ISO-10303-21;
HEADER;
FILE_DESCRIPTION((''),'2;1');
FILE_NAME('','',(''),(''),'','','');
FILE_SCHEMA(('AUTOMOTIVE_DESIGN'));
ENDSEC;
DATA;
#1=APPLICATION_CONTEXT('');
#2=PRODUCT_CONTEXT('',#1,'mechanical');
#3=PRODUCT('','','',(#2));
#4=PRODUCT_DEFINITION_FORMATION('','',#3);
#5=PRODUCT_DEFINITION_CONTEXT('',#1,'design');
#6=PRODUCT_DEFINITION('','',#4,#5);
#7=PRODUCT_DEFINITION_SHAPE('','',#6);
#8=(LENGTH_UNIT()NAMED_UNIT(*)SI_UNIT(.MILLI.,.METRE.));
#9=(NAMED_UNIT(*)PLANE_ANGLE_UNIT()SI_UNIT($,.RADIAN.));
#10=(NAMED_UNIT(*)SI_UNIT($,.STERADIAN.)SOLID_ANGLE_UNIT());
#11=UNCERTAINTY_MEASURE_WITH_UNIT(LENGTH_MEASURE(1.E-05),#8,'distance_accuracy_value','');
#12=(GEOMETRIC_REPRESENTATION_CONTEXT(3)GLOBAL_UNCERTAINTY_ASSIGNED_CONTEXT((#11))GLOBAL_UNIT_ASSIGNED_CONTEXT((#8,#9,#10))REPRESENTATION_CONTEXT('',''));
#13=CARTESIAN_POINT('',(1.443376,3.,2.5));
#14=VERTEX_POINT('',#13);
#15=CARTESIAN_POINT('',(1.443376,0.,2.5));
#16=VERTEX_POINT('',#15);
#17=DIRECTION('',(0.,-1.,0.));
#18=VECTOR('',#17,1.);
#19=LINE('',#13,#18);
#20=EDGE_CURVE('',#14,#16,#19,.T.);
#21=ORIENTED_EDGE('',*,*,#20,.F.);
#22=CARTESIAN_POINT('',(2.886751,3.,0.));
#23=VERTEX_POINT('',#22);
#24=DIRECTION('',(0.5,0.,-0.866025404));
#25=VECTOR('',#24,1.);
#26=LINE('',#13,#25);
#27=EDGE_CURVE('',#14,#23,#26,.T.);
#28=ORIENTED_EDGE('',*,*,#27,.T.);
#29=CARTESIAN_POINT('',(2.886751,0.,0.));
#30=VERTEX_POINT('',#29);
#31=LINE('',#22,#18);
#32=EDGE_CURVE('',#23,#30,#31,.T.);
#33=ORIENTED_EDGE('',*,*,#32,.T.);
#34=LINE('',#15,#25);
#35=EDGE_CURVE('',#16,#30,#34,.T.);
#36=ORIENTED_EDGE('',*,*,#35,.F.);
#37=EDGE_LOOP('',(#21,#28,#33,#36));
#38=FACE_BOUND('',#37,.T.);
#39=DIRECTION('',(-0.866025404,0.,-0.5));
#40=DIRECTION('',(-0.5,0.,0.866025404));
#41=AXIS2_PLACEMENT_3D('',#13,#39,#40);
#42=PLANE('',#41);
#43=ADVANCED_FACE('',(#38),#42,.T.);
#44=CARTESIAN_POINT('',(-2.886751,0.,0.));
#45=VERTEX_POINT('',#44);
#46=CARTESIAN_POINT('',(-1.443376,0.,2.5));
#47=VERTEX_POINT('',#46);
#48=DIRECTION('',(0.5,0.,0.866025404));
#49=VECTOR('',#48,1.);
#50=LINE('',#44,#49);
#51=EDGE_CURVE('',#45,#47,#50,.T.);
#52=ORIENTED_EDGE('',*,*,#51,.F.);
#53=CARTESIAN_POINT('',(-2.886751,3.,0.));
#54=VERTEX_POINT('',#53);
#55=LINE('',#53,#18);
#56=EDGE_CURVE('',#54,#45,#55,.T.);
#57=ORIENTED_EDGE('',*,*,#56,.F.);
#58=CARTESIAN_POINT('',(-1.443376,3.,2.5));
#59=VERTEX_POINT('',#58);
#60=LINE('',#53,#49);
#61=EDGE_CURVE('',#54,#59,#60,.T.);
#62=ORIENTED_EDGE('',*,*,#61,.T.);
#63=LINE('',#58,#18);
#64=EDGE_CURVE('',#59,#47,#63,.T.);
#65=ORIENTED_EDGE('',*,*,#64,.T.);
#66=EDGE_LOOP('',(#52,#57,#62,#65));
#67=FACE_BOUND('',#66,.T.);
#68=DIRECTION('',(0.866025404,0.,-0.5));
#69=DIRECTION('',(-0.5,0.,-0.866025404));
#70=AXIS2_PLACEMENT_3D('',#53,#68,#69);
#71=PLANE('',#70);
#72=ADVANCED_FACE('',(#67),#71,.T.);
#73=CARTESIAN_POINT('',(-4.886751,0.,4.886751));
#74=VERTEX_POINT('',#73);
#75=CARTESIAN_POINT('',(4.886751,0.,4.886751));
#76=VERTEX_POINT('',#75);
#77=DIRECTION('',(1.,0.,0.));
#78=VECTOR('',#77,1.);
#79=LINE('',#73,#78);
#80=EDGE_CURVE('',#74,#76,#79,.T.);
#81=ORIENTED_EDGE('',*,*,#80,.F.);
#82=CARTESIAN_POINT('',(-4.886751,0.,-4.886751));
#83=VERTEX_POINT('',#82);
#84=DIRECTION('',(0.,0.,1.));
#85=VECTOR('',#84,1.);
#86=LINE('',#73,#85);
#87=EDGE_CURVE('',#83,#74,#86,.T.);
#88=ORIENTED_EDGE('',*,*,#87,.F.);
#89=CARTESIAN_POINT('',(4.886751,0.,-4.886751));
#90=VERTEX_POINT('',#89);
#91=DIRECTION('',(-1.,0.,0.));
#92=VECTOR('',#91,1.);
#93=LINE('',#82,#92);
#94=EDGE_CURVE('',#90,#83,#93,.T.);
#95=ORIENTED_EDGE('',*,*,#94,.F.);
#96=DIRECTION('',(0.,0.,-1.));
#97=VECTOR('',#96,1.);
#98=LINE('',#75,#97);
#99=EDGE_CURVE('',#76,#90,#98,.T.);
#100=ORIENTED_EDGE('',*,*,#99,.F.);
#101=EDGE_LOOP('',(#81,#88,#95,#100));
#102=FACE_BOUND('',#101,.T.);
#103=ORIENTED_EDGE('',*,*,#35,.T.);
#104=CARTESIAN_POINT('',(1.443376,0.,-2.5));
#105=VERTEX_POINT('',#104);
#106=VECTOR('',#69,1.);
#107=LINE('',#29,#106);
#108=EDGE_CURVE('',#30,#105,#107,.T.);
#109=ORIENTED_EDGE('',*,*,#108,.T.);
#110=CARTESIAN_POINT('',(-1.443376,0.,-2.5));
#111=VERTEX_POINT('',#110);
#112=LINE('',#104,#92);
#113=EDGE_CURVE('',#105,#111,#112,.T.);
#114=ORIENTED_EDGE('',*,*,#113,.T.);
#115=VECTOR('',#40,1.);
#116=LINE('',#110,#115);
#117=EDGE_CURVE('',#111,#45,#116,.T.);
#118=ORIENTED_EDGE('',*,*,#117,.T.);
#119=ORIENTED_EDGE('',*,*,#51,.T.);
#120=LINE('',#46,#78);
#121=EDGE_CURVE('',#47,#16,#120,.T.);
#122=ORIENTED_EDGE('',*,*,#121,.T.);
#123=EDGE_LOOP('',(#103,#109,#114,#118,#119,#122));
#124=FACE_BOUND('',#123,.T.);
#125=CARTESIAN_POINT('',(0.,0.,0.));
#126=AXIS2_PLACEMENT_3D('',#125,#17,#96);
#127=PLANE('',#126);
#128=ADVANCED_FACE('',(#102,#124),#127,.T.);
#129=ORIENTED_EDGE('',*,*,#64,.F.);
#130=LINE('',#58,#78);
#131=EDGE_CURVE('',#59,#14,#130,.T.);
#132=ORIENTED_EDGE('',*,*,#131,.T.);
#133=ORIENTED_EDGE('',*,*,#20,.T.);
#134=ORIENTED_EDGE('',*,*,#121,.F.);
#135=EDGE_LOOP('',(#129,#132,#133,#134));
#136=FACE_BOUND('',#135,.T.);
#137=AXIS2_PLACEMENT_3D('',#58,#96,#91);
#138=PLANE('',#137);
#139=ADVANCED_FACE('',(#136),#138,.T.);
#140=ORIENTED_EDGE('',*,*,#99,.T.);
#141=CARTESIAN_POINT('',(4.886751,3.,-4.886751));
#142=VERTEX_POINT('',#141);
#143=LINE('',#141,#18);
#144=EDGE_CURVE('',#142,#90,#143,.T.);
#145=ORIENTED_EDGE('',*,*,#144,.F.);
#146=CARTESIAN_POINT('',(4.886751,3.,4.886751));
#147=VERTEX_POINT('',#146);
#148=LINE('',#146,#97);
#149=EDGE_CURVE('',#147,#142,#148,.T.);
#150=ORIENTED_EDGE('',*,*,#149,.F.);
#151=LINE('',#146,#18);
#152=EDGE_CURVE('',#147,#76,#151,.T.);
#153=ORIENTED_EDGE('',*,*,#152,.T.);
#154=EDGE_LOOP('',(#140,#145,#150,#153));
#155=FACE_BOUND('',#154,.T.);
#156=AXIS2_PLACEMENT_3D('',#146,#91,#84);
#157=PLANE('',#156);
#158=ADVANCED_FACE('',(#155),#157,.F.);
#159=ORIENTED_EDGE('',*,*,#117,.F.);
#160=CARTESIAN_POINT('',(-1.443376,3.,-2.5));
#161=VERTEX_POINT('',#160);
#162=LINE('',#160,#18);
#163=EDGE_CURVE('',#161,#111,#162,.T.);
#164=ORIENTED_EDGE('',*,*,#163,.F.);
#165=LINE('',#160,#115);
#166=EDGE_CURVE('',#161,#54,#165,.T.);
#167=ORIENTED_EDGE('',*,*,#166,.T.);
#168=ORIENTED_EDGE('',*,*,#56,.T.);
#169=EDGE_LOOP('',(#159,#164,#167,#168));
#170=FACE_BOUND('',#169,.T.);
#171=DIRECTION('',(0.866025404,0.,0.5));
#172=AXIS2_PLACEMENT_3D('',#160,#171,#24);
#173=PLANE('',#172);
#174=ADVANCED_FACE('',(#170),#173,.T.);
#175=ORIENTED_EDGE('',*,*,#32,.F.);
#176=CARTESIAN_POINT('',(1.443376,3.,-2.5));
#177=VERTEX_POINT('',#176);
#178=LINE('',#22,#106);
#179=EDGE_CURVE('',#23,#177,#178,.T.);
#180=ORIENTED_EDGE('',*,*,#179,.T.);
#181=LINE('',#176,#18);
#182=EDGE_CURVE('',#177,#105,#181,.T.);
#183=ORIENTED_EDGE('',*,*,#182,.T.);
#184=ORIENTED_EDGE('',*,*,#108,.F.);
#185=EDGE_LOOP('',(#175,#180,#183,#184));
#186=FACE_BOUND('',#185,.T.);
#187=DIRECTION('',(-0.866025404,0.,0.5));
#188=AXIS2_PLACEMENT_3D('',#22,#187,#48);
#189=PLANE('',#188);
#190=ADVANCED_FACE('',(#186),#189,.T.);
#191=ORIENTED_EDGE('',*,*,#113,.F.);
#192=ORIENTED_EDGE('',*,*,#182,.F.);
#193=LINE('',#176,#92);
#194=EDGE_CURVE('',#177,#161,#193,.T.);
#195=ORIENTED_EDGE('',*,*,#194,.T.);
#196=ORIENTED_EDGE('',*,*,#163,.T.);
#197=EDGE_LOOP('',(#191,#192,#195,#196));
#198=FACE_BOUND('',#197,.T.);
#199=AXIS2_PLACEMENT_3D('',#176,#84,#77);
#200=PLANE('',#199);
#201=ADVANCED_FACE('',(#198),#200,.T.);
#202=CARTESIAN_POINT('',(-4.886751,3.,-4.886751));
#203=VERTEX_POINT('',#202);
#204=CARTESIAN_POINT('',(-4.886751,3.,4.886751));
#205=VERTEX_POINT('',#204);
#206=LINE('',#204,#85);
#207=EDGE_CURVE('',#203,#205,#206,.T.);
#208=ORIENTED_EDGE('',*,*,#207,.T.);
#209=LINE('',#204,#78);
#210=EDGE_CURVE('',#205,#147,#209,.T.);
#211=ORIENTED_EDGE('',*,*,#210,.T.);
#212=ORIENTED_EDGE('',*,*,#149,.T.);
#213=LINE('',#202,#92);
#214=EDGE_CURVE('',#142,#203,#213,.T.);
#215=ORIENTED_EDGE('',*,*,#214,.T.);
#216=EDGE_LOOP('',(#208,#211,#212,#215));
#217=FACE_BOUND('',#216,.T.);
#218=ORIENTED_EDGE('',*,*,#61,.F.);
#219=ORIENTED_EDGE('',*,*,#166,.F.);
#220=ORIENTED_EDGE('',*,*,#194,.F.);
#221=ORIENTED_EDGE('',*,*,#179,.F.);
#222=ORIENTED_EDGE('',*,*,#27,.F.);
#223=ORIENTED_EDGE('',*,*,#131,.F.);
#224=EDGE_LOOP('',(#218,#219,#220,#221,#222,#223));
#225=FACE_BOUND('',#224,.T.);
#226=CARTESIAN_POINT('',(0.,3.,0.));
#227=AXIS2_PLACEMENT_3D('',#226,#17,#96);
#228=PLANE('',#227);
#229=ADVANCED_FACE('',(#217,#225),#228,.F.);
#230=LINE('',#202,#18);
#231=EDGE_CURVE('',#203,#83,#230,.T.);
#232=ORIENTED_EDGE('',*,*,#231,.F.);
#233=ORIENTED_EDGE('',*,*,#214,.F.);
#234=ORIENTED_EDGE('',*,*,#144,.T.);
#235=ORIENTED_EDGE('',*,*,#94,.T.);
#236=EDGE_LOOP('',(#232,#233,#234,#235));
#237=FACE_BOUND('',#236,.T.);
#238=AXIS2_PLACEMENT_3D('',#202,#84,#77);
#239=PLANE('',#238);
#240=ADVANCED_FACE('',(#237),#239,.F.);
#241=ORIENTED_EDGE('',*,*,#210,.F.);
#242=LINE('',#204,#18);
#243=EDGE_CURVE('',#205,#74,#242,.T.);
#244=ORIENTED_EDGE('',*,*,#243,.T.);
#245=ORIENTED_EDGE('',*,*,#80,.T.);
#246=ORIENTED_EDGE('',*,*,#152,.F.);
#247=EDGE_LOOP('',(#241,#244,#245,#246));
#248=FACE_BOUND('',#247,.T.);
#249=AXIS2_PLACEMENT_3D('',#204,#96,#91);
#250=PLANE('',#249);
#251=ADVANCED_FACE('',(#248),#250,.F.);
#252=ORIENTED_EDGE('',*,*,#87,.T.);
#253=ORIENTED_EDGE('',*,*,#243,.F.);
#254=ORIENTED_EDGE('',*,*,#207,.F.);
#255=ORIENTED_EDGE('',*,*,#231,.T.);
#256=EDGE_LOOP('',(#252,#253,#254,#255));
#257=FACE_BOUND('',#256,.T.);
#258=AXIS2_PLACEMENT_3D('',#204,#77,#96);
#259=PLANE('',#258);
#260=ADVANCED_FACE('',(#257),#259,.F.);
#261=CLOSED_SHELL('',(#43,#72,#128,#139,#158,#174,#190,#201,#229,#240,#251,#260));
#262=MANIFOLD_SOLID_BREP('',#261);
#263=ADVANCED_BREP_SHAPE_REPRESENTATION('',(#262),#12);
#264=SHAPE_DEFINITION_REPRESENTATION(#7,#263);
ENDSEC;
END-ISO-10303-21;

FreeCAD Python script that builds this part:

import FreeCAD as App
import Part
import Sketcher

V = App.Vector
Q = App.Units.Quantity

doc = App.newDocument("Part")
params = doc.addObject("Spreadsheet::Sheet", "Params")
for row, (alias, value) in enumerate([
    ("pad1_length", "3 mm"),
], start=1):
    params.set(f"A{row}", alias)
    params.set(f"B{row}", "=" + value)
    params.setAlias(f"B{row}", alias)

body = doc.addObject("PartDesign::Body", "Body")

# Sketch on XZ plane
sketch1 = body.newObject("Sketcher::SketchObject", "Sketch")
sketch1.AttachmentSupport = (doc.getObject("XZ_Plane"), [""])
sketch1.MapMode = "FlatFace"
sketch1.addGeometry(Part.LineSegment(V(-4.9, -4.9, 0), V(-4.9, 4.9, 0)), False)
sketch1.addGeometry(Part.LineSegment(V(-4.9, 4.9, 0), V(4.9, 4.9, 0)), False)
sketch1.addGeometry(Part.LineSegment(V(4.9, 4.9, 0), V(4.9, -4.9, 0)), False)
sketch1.addGeometry(Part.LineSegment(V(4.9, -4.9, 0), V(-4.9, -4.9, 0)), False)
sketch1.addGeometry(Part.LineSegment(V(-1.4, -2.5, 0), V(1.4, -2.5, 0)), False)
sketch1.addGeometry(Part.LineSegment(V(1.4, -2.5, 0), V(2.9, 0, 0)), False)
sketch1.addGeometry(Part.LineSegment(V(2.9, 0, 0), V(1.4, 2.5, 0)), False)
sketch1.addGeometry(Part.LineSegment(V(1.4, 2.5, 0), V(-1.4, 2.5, 0)), False)
sketch1.addGeometry(Part.LineSegment(V(-1.4, 2.5, 0), V(-2.9, 0, 0)), False)
sketch1.addGeometry(Part.LineSegment(V(-2.9, 0, 0), V(-1.4, -2.5, 0)), False)
sketch1.addConstraint(Sketcher.Constraint("Coincident", 0, 2, 1, 1))
sketch1.addConstraint(Sketcher.Constraint("Coincident", 1, 2, 2, 1))
sketch1.addConstraint(Sketcher.Constraint("Coincident", 2, 2, 3, 1))
sketch1.addConstraint(Sketcher.Constraint("Coincident", 3, 2, 0, 1))
sketch1.addConstraint(Sketcher.Constraint("Coincident", 4, 2, 5, 1))
sketch1.addConstraint(Sketcher.Constraint("Coincident", 5, 2, 6, 1))
sketch1.addConstraint(Sketcher.Constraint("Coincident", 6, 2, 7, 1))
sketch1.addConstraint(Sketcher.Constraint("Coincident", 7, 2, 8, 1))
sketch1.addConstraint(Sketcher.Constraint("Coincident", 8, 2, 9, 1))
sketch1.addConstraint(Sketcher.Constraint("Coincident", 9, 2, 4, 1))
sketch1.addConstraint(Sketcher.Constraint("Vertical", 0))
sketch1.addConstraint(Sketcher.Constraint("Horizontal", 1))
sketch1.addConstraint(Sketcher.Constraint("Vertical", 2))
sketch1.addConstraint(Sketcher.Constraint("Horizontal", 3))
sketch1.addConstraint(Sketcher.Constraint("Horizontal", 4))
sketch1.addConstraint(Sketcher.Constraint("Horizontal", 7))
sketch1.addConstraint(Sketcher.Constraint("Symmetric", 0, 2, 2, 2, -1, 1))
sketch1.addConstraint(Sketcher.Constraint("Symmetric", 4, 2, 7, 2, -1, 1))
sketch1.addConstraint(Sketcher.Constraint("Symmetric", 5, 2, 8, 2, -1, 1))
sketch1.addConstraint(Sketcher.Constraint("PointOnObject", 5, 2, -1))
sketch1.addConstraint(Sketcher.Constraint("Parallel", 6, 9))
sketch1.addConstraint(Sketcher.Constraint("Vertical", 4, 2, 6, 2))
sketch1.addConstraint(Sketcher.Constraint("Equal", 3, 0))
sketch1.addConstraint(Sketcher.Constraint("Angle", 5, Q("60 deg")))
sketch1.addConstraint(Sketcher.Constraint("DistanceX", 5, 2, 1, 2, 2.0))
sketch1.addConstraint(Sketcher.Constraint("DistanceY", 4, 2, 6, 2, 5.0))
sketch1.addConstraint(Sketcher.Constraint("DistanceX", 4, 1, 4, 2, 2.886751))
pad1 = body.newObject("PartDesign::Pad", "Pad")
pad1.Profile = sketch1
pad1.setExpression("Length", "Params.pad1_length")
pad1.Reversed = True

doc.recompute()
